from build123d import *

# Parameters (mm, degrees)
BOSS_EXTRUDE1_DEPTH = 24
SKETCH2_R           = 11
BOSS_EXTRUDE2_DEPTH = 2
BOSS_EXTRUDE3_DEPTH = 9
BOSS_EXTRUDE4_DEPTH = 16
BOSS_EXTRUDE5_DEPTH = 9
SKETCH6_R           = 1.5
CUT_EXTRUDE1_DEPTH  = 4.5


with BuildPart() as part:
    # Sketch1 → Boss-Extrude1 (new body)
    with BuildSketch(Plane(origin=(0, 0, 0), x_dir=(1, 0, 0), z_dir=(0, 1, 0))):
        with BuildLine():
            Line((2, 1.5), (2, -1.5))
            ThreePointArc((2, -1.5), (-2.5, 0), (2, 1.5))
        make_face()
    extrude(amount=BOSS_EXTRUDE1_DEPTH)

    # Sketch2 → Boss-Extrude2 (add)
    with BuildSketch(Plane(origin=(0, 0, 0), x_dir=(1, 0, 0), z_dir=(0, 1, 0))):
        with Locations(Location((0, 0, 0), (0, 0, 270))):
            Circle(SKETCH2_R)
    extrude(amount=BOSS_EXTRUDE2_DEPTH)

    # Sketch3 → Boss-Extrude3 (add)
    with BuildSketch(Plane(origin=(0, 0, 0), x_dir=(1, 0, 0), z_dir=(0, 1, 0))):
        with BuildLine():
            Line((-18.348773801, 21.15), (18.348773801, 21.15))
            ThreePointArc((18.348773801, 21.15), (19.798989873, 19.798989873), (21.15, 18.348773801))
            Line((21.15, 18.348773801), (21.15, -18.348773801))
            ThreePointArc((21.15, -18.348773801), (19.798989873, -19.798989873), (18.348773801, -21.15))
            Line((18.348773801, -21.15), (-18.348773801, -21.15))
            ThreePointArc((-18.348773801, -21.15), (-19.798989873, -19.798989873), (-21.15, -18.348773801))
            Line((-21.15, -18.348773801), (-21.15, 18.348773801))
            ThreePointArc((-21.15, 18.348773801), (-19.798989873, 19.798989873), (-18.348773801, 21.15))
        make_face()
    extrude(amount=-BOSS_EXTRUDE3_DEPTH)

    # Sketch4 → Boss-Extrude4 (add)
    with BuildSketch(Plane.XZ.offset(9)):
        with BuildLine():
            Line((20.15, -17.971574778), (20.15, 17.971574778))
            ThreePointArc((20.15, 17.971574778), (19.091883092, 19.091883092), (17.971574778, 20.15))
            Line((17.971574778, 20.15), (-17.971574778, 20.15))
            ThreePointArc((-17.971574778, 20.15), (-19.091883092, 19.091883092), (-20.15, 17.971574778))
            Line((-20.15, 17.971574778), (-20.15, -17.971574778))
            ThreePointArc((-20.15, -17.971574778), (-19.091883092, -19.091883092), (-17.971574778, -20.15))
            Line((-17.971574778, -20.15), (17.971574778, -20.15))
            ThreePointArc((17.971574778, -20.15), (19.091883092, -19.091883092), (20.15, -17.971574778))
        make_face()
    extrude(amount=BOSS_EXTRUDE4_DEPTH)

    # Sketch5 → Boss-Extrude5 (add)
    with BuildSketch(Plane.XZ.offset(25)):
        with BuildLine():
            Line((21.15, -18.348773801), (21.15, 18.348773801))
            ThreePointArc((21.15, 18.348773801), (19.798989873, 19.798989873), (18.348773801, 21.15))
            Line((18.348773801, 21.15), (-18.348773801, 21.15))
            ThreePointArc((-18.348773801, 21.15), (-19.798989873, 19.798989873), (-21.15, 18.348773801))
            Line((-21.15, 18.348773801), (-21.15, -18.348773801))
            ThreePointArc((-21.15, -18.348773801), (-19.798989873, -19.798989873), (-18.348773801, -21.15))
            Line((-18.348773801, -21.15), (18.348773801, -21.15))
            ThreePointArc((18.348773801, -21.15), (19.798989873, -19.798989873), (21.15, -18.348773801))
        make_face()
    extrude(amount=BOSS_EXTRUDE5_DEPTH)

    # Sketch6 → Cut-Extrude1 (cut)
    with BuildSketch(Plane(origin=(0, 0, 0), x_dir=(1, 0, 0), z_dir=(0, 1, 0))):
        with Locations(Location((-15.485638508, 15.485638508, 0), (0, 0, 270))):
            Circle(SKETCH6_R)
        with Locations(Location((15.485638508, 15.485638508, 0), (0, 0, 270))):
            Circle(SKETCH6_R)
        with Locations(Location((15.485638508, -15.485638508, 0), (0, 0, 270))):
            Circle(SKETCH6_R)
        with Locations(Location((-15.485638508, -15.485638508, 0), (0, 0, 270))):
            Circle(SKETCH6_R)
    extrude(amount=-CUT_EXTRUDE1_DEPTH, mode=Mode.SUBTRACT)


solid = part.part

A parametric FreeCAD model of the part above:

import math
import FreeCAD as App
import Part
import Sketcher

doc = App.newDocument("Part")
body = doc.addObject("PartDesign::Body", "Body")

# Sketch on XZ plane
sketch1 = body.newObject("Sketcher::SketchObject", "Sketch")
sketch1.AttachmentSupport = (doc.getObject("XZ_Plane"), [""])
sketch1.MapMode = "FlatFace"
sketch1.addGeometry([
    Part.LineSegment(App.Vector(2, 1.5, 0), App.Vector(2, -1.5, 0)),
    Part.ArcOfCircle(Part.Circle(App.Vector(0, 0, 0), App.Vector(0, 0, 1), 2.5), math.radians(37), math.radians(323)),
], False)
sketch1.addConstraint([
    Sketcher.Constraint("Coincident", 0, 1, 1, 1),
    Sketcher.Constraint("Coincident", 1, 2, 0, 2),
    Sketcher.Constraint("Vertical", 0),
    Sketcher.Constraint("Coincident", 1, 3, -1, 1),
    Sketcher.Constraint("Radius", 1, 2.5),
    Sketcher.Constraint("DistanceY", 0, 2, 0, 1, 3.0),
])
pad1 = body.newObject("PartDesign::Pad", "Pad")
pad1.Profile = sketch1
pad1.Length = 24
pad1.Reversed = True

# Sketch on XZ plane
sketch2 = body.newObject("Sketcher::SketchObject", "Sketch001")
sketch2.AttachmentSupport = (doc.getObject("XZ_Plane"), [""])
sketch2.MapMode = "FlatFace"
sketch2.addGeometry(Part.Circle(App.Vector(0, 0, 0), App.Vector(0, 0, 1), 11), False)
sketch2.addConstraint([
    Sketcher.Constraint("Coincident", 0, 3, -1, 1),
    Sketcher.Constraint("Diameter", 0, 22.0),
])
pad2 = body.newObject("PartDesign::Pad", "Pad001")
pad2.Profile = sketch2
pad2.Length = 2
pad2.Reversed = True

# Sketch on XZ plane
sketch3 = body.newObject("Sketcher::SketchObject", "Sketch002")
sketch3.AttachmentSupport = (doc.getObject("XZ_Plane"), [""])
sketch3.MapMode = "FlatFace"
sketch3.addGeometry([
    Part.LineSegment(App.Vector(18.3, -21.1, 0), App.Vector(-18.3, -21.1, 0)),  # 0
    Part.ArcOfCircle(Part.Circle(App.Vector(0, 0, 0), App.Vector(0, 0, 1), 28), math.radians(-139.06), math.radians(-130.94)),  # 1
    Part.LineSegment(App.Vector(-21.1, -18.3, 0), App.Vector(-21.1, 18.3, 0)),  # 2
    Part.ArcOfCircle(Part.Circle(App.Vector(0, 0, 0), App.Vector(0, 0, 1), 28), math.radians(130.94), math.radians(139.06)),  # 3
    Part.LineSegment(App.Vector(-18.3, 21.1, 0), App.Vector(18.3, 21.1, 0)),  # 4
    Part.ArcOfCircle(Part.Circle(App.Vector(0, 0, 0), App.Vector(0, 0, 1), 28), math.radians(40.94), math.radians(49.06)),  # 5
    Part.LineSegment(App.Vector(21.1, 18.3, 0), App.Vector(21.1, -18.3, 0)),  # 6
    Part.ArcOfCircle(Part.Circle(App.Vector(0, 0, 0), App.Vector(0, 0, 1), 28), math.radians(-49.06), math.radians(-40.94)),  # 7
], False)
sketch3.addConstraint([
    Sketcher.Constraint("Coincident", 0, 2, 1, 2),
    Sketcher.Constraint("Coincident", 1, 1, 2, 1),
    Sketcher.Constraint("Coincident", 2, 2, 3, 2),
    Sketcher.Constraint("Coincident", 3, 1, 4, 1),
    Sketcher.Constraint("Coincident", 4, 2, 5, 2),
    Sketcher.Constraint("Coincident", 5, 1, 6, 1),
    Sketcher.Constraint("Coincident", 6, 2, 7, 2),
    Sketcher.Constraint("Coincident", 7, 1, 0, 1),
    Sketcher.Constraint("Horizontal", 0),
    Sketcher.Constraint("Vertical", 2),
    Sketcher.Constraint("Horizontal", 4),
    Sketcher.Constraint("Vertical", 6),
    Sketcher.Constraint("Coincident", 1, 3, -1, 1),
    Sketcher.Constraint("Coincident", 3, 3, -1, 1),
    Sketcher.Constraint("Coincident", 5, 3, -1, 1),
    Sketcher.Constraint("Coincident", 7, 3, -1, 1),
    Sketcher.Constraint("Equal", 1, 3),
    Sketcher.Constraint("Equal", 3, 5),
    Sketcher.Constraint("Equal", 5, 7),
    Sketcher.Constraint("Horizontal", 2, 2, 5, 1),
    Sketcher.Constraint("Vertical", 0, 2, 3, 1),
    Sketcher.Constraint("Equal", 4, 2),
    Sketcher.Constraint("Radius", 1, 28.0),
    Sketcher.Constraint("DistanceY", 0, 2, -1, 1, 21.15),
])
pad3 = body.newObject("PartDesign::Pad", "Pad002")
pad3.Profile = sketch3
pad3.Length = 9

# Sketch on XZ plane
sketch4 = body.newObject("Sketcher::SketchObject", "Sketch003")
sketch4.AttachmentSupport = (doc.getObject("XZ_Plane"), [""])
sketch4.MapMode = "FlatFace"
sketch4.AttachmentOffset = App.Placement(App.Vector(0, 0, 9), App.Rotation())
sketch4.addGeometry([
    Part.LineSegment(App.Vector(20.1, -18, 0), App.Vector(20.1, 18, 0)),  # 0
    Part.ArcOfCircle(Part.Circle(App.Vector(0, 0, 0), App.Vector(0, 0, 1), 27), math.radians(41.73), math.radians(48.27)),  # 1
    Part.LineSegment(App.Vector(18, 20.1, 0), App.Vector(-18, 20.1, 0)),  # 2
    Part.ArcOfCircle(Part.Circle(App.Vector(0, 0, 0), App.Vector(0, 0, 1), 27), math.radians(131.73), math.radians(138.27)),  # 3
    Part.LineSegment(App.Vector(-20.1, 18, 0), App.Vector(-20.1, -18, 0)),  # 4
    Part.ArcOfCircle(Part.Circle(App.Vector(0, 0, 0), App.Vector(0, 0, 1), 27), math.radians(-138.27), math.radians(-131.73)),  # 5
    Part.LineSegment(App.Vector(-18, -20.1, 0), App.Vector(18, -20.1, 0)),  # 6
    Part.ArcOfCircle(Part.Circle(App.Vector(0, 0, 0), App.Vector(0, 0, 1), 27), math.radians(-48.27), math.radians(-41.73)),  # 7
], False)
sketch4.addConstraint([
    Sketcher.Constraint("Coincident", 0, 2, 1, 1),
    Sketcher.Constraint("Coincident", 1, 2, 2, 1),
    Sketcher.Constraint("Coincident", 2, 2, 3, 1),
    Sketcher.Constraint("Coincident", 3, 2, 4, 1),
    Sketcher.Constraint("Coincident", 4, 2, 5, 1),
    Sketcher.Constraint("Coincident", 5, 2, 6, 1),
    Sketcher.Constraint("Coincident", 6, 2, 7, 1),
    Sketcher.Constraint("Coincident", 7, 2, 0, 1),
    Sketcher.Constraint("Vertical", 0),
    Sketcher.Constraint("Horizontal", 2),
    Sketcher.Constraint("Vertical", 4),
    Sketcher.Constraint("Horizontal", 6),
    Sketcher.Constraint("Coincident", 1, 3, -1, 1),
    Sketcher.Constraint("Coincident", 3, 3, -1, 1),
    Sketcher.Constraint("Coincident", 5, 3, -1, 1),
    Sketcher.Constraint("Coincident", 7, 3, -1, 1),
    Sketcher.Constraint("Equal", 1, 3),
    Sketcher.Constraint("Equal", 3, 5),
    Sketcher.Constraint("Equal", 5, 7),
    Sketcher.Constraint("Horizontal", 0, 2, 3, 2),
    Sketcher.Constraint("Vertical", 2, 2, 5, 2),
    Sketcher.Constraint("Equal", 6, 0),
    Sketcher.Constraint("Radius", 1, 27.0),
    Sketcher.Constraint("DistanceX", -1, 1, 0, 2, 20.15),
])
pad4 = body.newObject("PartDesign::Pad", "Pad003")
pad4.Profile = sketch4
pad4.Length = 16

# Sketch on XZ plane
sketch5 = body.newObject("Sketcher::SketchObject", "Sketch004")
sketch5.AttachmentSupport = (doc.getObject("XZ_Plane"), [""])
sketch5.MapMode = "FlatFace"
sketch5.AttachmentOffset = App.Placement(App.Vector(0, 0, 25), App.Rotation())
sketch5.addGeometry([
    Part.LineSegment(App.Vector(21.1, -18.3, 0), App.Vector(21.1, 18.3, 0)),  # 0
    Part.ArcOfCircle(Part.Circle(App.Vector(0, 0, 0), App.Vector(0, 0, 1), 28), math.radians(40.94), math.radians(49.06)),  # 1
    Part.LineSegment(App.Vector(18.3, 21.1, 0), App.Vector(-18.3, 21.1, 0)),  # 2
    Part.ArcOfCircle(Part.Circle(App.Vector(0, 0, 0), App.Vector(0, 0, 1), 28), math.radians(130.94), math.radians(139.06)),  # 3
    Part.LineSegment(App.Vector(-21.1, 18.3, 0), App.Vector(-21.1, -18.3, 0)),  # 4
    Part.ArcOfCircle(Part.Circle(App.Vector(0, 0, 0), App.Vector(0, 0, 1), 28), math.radians(-139.06), math.radians(-130.94)),  # 5
    Part.LineSegment(App.Vector(-18.3, -21.1, 0), App.Vector(18.3, -21.1, 0)),  # 6
    Part.ArcOfCircle(Part.Circle(App.Vector(0, 0, 0), App.Vector(0, 0, 1), 28), math.radians(-49.06), math.radians(-40.94)),  # 7
], False)
sketch5.addConstraint([
    Sketcher.Constraint("Coincident", 0, 2, 1, 1),
    Sketcher.Constraint("Coincident", 1, 2, 2, 1),
    Sketcher.Constraint("Coincident", 2, 2, 3, 1),
    Sketcher.Constraint("Coincident", 3, 2, 4, 1),
    Sketcher.Constraint("Coincident", 4, 2, 5, 1),
    Sketcher.Constraint("Coincident", 5, 2, 6, 1),
    Sketcher.Constraint("Coincident", 6, 2, 7, 1),
    Sketcher.Constraint("Coincident", 7, 2, 0, 1),
    Sketcher.Constraint("Vertical", 0),
    Sketcher.Constraint("Horizontal", 2),
    Sketcher.Constraint("Vertical", 4),
    Sketcher.Constraint("Horizontal", 6),
    Sketcher.Constraint("Coincident", 1, 3, -1, 1),
    Sketcher.Constraint("Coincident", 3, 3, -1, 1),
    Sketcher.Constraint("Coincident", 5, 3, -1, 1),
    Sketcher.Constraint("Coincident", 7, 3, -1, 1),
    Sketcher.Constraint("Equal", 1, 3),
    Sketcher.Constraint("Equal", 3, 5),
    Sketcher.Constraint("Equal", 5, 7),
    Sketcher.Constraint("Horizontal", 0, 2, 3, 2),
    Sketcher.Constraint("Vertical", 2, 2, 5, 2),
    Sketcher.Constraint("Equal", 6, 0),
    Sketcher.Constraint("Radius", 1, 28.0),
    Sketcher.Constraint("DistanceX", -1, 1, 0, 2, 21.15),
])
pad5 = body.newObject("PartDesign::Pad", "Pad004")
pad5.Profile = sketch5
pad5.Length = 9

# Sketch on XZ plane
sketch6 = body.newObject("Sketcher::SketchObject", "Sketch005")
sketch6.AttachmentSupport = (doc.getObject("XZ_Plane"), [""])
sketch6.MapMode = "FlatFace"
sketch6.addGeometry([
    Part.Circle(App.Vector(-15.5, -15.5, 0), App.Vector(0, 0, 1), 1.5),
    Part.Circle(App.Vector(15.5, -15.5, 0), App.Vector(0, 0, 1), 1.5),
    Part.Circle(App.Vector(15.5, 15.5, 0), App.Vector(0, 0, 1), 1.5),
    Part.Circle(App.Vector(-15.5, 15.5, 0), App.Vector(0, 0, 1), 1.5),
], False)
sketch6.addConstraint([
    Sketcher.Constraint("Equal", 0, 1),
    Sketcher.Constraint("Equal", 1, 2),
    Sketcher.Constraint("Equal", 2, 3),
    Sketcher.Constraint("Symmetric", 0, 3, 2, 3, -1, 1),
    Sketcher.Constraint("Symmetric", 1, 3, 3, 3, -1, 1),
    Sketcher.Constraint("Symmetric", 0, 3, 1, 3, -2),
    Sketcher.Constraint("Diameter", 0, 3.0),
    Sketcher.Constraint("DistanceX", 0, 3, -1, 1, 15.485639),
    Sketcher.Constraint("DistanceY", 0, 3, -1, 1, 15.485639),
])
pocket1 = body.newObject("PartDesign::Pocket", "Pocket")
pocket1.Profile = sketch6
pocket1.Length = 4.5
pocket1.Reversed = True

doc.recompute()
